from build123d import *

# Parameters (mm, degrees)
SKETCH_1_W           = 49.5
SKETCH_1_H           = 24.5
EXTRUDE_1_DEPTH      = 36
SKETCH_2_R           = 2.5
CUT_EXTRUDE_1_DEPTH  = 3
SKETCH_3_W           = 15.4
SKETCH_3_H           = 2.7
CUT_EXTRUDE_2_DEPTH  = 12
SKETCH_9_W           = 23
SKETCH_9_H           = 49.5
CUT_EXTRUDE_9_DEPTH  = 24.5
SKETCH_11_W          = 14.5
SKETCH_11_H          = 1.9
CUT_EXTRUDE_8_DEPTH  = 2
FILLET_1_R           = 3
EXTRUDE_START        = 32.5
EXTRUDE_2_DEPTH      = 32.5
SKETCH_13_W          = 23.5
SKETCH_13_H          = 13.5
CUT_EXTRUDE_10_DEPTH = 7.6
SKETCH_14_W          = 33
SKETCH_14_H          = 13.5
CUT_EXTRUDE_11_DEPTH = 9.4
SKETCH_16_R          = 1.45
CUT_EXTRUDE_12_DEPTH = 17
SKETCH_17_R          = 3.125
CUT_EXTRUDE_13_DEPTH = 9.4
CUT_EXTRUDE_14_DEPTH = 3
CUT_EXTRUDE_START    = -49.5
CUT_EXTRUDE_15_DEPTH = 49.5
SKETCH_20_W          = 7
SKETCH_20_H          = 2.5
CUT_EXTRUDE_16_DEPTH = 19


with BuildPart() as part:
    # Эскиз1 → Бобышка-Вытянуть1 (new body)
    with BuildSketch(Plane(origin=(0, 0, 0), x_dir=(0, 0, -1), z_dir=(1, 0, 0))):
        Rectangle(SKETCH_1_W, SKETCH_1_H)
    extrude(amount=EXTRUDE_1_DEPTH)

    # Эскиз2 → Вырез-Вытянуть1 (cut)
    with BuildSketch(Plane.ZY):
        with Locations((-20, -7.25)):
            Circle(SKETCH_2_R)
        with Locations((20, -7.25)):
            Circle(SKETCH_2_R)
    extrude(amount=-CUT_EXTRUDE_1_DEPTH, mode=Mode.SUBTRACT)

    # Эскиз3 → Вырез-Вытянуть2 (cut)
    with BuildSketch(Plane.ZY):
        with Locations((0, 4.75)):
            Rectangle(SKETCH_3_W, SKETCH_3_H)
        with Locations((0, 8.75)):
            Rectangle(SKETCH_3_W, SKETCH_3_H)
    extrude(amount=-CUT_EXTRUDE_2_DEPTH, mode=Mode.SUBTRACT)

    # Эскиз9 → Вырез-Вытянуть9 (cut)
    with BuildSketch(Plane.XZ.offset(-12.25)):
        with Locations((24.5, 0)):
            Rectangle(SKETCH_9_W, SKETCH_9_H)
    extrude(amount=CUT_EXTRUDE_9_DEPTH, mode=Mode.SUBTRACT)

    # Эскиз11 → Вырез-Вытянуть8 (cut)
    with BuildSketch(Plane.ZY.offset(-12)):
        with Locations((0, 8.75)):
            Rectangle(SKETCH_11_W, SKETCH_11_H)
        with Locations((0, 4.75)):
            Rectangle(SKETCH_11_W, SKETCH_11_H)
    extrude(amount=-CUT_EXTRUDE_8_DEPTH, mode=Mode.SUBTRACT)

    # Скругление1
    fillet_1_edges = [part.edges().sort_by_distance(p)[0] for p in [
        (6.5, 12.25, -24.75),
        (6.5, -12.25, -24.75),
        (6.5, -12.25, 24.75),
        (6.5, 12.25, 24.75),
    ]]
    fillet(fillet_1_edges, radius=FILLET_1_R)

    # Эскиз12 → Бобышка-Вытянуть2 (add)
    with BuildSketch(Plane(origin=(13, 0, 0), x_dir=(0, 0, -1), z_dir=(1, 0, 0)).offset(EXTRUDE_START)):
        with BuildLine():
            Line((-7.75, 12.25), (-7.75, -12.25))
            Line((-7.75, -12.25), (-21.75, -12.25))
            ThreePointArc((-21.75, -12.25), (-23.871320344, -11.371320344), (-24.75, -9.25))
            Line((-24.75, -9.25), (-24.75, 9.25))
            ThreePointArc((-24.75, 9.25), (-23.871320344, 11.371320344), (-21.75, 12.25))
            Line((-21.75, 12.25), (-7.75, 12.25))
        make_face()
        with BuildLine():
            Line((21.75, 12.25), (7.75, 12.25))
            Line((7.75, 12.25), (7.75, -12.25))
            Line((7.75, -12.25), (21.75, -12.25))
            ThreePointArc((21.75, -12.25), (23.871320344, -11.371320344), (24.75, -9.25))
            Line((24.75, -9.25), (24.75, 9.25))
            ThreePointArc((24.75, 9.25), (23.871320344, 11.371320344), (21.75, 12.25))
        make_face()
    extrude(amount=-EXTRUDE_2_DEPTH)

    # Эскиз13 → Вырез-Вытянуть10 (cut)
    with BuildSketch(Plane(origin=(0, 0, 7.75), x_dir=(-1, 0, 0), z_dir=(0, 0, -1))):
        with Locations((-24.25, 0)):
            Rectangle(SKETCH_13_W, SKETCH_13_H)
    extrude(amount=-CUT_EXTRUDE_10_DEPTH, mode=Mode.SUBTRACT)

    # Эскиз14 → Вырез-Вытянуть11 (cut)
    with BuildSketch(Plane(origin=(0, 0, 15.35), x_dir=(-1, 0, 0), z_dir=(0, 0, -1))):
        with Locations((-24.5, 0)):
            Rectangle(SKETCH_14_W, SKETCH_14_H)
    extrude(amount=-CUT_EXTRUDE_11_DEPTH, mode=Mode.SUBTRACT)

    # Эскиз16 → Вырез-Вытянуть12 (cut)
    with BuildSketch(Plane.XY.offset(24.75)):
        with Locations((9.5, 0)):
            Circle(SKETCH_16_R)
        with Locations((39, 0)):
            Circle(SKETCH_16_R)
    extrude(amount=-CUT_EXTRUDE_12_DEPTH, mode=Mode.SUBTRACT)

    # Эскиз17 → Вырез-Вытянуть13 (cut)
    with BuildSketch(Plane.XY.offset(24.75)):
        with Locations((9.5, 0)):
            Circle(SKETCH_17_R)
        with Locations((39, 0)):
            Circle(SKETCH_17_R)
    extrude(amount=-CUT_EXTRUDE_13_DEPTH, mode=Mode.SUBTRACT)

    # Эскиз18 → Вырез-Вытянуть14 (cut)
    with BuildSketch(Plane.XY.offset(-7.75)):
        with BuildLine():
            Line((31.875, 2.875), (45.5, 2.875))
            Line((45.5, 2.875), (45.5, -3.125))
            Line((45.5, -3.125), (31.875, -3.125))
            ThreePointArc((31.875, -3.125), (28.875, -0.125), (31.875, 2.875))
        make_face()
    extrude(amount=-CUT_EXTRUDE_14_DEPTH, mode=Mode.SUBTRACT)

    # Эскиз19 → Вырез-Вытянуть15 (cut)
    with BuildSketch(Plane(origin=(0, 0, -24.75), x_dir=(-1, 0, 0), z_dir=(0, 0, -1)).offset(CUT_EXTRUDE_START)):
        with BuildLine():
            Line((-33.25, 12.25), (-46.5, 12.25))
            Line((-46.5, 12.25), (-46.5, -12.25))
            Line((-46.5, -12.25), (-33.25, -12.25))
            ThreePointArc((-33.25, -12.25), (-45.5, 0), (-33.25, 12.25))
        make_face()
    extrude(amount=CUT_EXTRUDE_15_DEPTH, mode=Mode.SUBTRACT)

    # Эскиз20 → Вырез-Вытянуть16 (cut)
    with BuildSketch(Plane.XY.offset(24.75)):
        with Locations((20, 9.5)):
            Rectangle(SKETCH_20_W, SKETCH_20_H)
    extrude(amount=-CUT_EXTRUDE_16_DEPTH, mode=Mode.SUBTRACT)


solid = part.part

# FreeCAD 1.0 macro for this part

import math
import FreeCAD as App
import Part
import Sketcher


def edges_at(feature, points):
    """Names of the edges that pass closest to the given points."""
    edges = feature.Shape.Edges
    near = lambda p: min(range(len(edges)), key=lambda i: edges[i].distToShape(Part.Vertex(*p))[0])
    return sorted({f"Edge{near(p) + 1}" for p in points})


def add_polygon(sketch, points):
    """Adds a closed chain of lines whose ends are joined by coincident constraints."""
    first, n = sketch.GeometryCount, len(points)
    for a, b in zip(points, points[1:] + points[:1]):
        sketch.addGeometry(Part.LineSegment(App.Vector(*a, 0), App.Vector(*b, 0)), False)
    for i in range(n):
        sketch.addConstraint(Sketcher.Constraint("Coincident", first + i, 2, first + (i + 1) % n, 1))

doc = App.newDocument("Part")
body = doc.addObject("PartDesign::Body", "Body")

sketch1 = body.newObject("Sketcher::SketchObject", "Sketch")
sketch1.AttachmentSupport = (doc.getObject("YZ_Plane"), [""])
sketch1.MapMode = "FlatFace"
add_polygon(sketch1, [(12, 25), (-12, 25), (-12, -25), (12, -25)])
sketch1.addConstraint(Sketcher.Constraint("Horizontal", 0))
sketch1.addConstraint(Sketcher.Constraint("Vertical", 1))
sketch1.addConstraint(Sketcher.Constraint("Horizontal", 2))
sketch1.addConstraint(Sketcher.Constraint("Vertical", 3))
sketch1.addConstraint(Sketcher.Constraint("Symmetric", 0, 2, 2, 2, -1, 1))
sketch1.addConstraint(Sketcher.Constraint("DistanceX", 0, 2, 0, 1, 24.5))
sketch1.addConstraint(Sketcher.Constraint("DistanceY", 1, 2, 1, 1, 49.5))
pad1 = body.newObject("PartDesign::Pad", "Pad")
pad1.Profile = sketch1
pad1.Length = 36

sketch2 = body.newObject("Sketcher::SketchObject", "Sketch001")
sketch2.AttachmentSupport = (doc.getObject("YZ_Plane"), [""])
sketch2.MapMode = "FlatFace"
sketch2.addGeometry(Part.Circle(App.Vector(-7.2, -20, 0), App.Vector(0, 0, 1), 2.5), False)
sketch2.addGeometry(Part.Circle(App.Vector(-7.2, 20, 0), App.Vector(0, 0, 1), 2.5), False)
sketch2.addConstraint(Sketcher.Constraint("Equal", 0, 1))
sketch2.addConstraint(Sketcher.Constraint("Symmetric", 0, 3, 1, 3, -1))
sketch2.addConstraint(Sketcher.Constraint("Diameter", 0, 5.0))
sketch2.addConstraint(Sketcher.Constraint("DistanceY", 0, 3, -1, 1, 20.0))
sketch2.addConstraint(Sketcher.Constraint("DistanceX", 0, 3, -1, 1, 7.25))
pocket1 = body.newObject("PartDesign::Pocket", "Pocket")
pocket1.Profile = sketch2
pocket1.Length = 3
pocket1.Reversed = True

sketch3 = body.newObject("Sketcher::SketchObject", "Sketch002")
sketch3.AttachmentSupport = (doc.getObject("YZ_Plane"), [""])
sketch3.MapMode = "FlatFace"
add_polygon(sketch3, [(6.1, -7.7), (3.4, -7.7), (3.4, 7.7), (6.1, 7.7)])
add_polygon(sketch3, [(10.1, -7.7), (7.4, -7.7), (7.4, 7.7), (10.1, 7.7)])
sketch3.addConstraint(Sketcher.Constraint("Horizontal", 0))
sketch3.addConstraint(Sketcher.Constraint("Vertical", 1))
sketch3.addConstraint(Sketcher.Constraint("Horizontal", 2))
sketch3.addConstraint(Sketcher.Constraint("Vertical", 3))
sketch3.addConstraint(Sketcher.Constraint("Horizontal", 4))
sketch3.addConstraint(Sketcher.Constraint("Vertical", 5))
sketch3.addConstraint(Sketcher.Constraint("Horizontal", 6))
sketch3.addConstraint(Sketcher.Constraint("Vertical", 7))
sketch3.addConstraint(Sketcher.Constraint("Horizontal", 3, 2, 4, 2))
sketch3.addConstraint(Sketcher.Constraint("Horizontal", 2, 2, 5, 2))
sketch3.addConstraint(Sketcher.Constraint("Equal", 2, 4))
sketch3.addConstraint(Sketcher.Constraint("DistanceX", 0, 2, 0, 1, 2.7))
sketch3.addConstraint(Sketcher.Constraint("DistanceY", 1, 1, 1, 2, 15.4))
sketch3.addConstraint(Sketcher.Constraint("DistanceX", 0, 2, 4, 2, 4.0))
sketch3.addConstraint(Sketcher.Constraint("DistanceX", -1, 1, 0, 2, 3.4))
sketch3.addConstraint(Sketcher.Constraint("DistanceY", 0, 2, -1, 1, 7.7))
pocket2 = body.newObject("PartDesign::Pocket", "Pocket001")
pocket2.Profile = sketch3
pocket2.Length = 12
pocket2.Reversed = True

sketch4 = body.newObject("Sketcher::SketchObject", "Sketch003")
sketch4.AttachmentSupport = (doc.getObject("XZ_Plane"), [""])
sketch4.MapMode = "FlatFace"
sketch4.AttachmentOffset = App.Placement(App.Vector(0, 0, -12.25), App.Rotation())
add_polygon(sketch4, [(13, 25), (13, -25), (36, -25), (36, 25)])
sketch4.addConstraint(Sketcher.Constraint("Vertical", 0))
sketch4.addConstraint(Sketcher.Constraint("Horizontal", 1))
sketch4.addConstraint(Sketcher.Constraint("Vertical", 2))
sketch4.addConstraint(Sketcher.Constraint("Horizontal", 3))
sketch4.addConstraint(Sketcher.Constraint("DistanceX", 1, 1, 1, 2, 23.0))
sketch4.addConstraint(Sketcher.Constraint("DistanceY", 0, 2, 0, 1, 49.5))
sketch4.addConstraint(Sketcher.Constraint("DistanceX", -1, 1, 0, 2, 13.0))
sketch4.addConstraint(Sketcher.Constraint("DistanceY", 0, 2, -1, 1, 24.75))
pocket3 = body.newObject("PartDesign::Pocket", "Pocket002")
pocket3.Profile = sketch4
pocket3.Length = 24.5
pocket3.Reversed = True

sketch5 = body.newObject("Sketcher::SketchObject", "Sketch004")
sketch5.AttachmentSupport = (doc.getObject("YZ_Plane"), [""])
sketch5.MapMode = "FlatFace"
sketch5.AttachmentOffset = App.Placement(App.Vector(0, 0, 12), App.Rotation())
add_polygon(sketch5, [(9.7, -7.2), (7.8, -7.2), (7.8, 7.2), (9.7, 7.2)])
add_polygon(sketch5, [(5.7, -7.2), (3.8, -7.2), (3.8, 7.2), (5.7, 7.2)])
sketch5.addConstraint(Sketcher.Constraint("Horizontal", 0))
sketch5.addConstraint(Sketcher.Constraint("Vertical", 1))
sketch5.addConstraint(Sketcher.Constraint("Horizontal", 2))
sketch5.addConstraint(Sketcher.Constraint("Vertical", 3))
sketch5.addConstraint(Sketcher.Constraint("Horizontal", 4))
sketch5.addConstraint(Sketcher.Constraint("Vertical", 5))
sketch5.addConstraint(Sketcher.Constraint("Horizontal", 6))
sketch5.addConstraint(Sketcher.Constraint("Vertical", 7))
sketch5.addConstraint(Sketcher.Constraint("Horizontal", 3, 2, 4, 2))
sketch5.addConstraint(Sketcher.Constraint("Horizontal", 2, 2, 5, 2))
sketch5.addConstraint(Sketcher.Constraint("Equal", 2, 4))
sketch5.addConstraint(Sketcher.Constraint("DistanceX", 0, 2, 0, 1, 1.9))
sketch5.addConstraint(Sketcher.Constraint("DistanceY", 1, 1, 1, 2, 14.5))
sketch5.addConstraint(Sketcher.Constraint("DistanceX", 4, 2, 0, 2, 4.0))
sketch5.addConstraint(Sketcher.Constraint("DistanceX", -1, 1, 0, 2, 7.8))
sketch5.addConstraint(Sketcher.Constraint("DistanceY", 0, 2, -1, 1, 7.25))
pocket4 = body.newObject("PartDesign::Pocket", "Pocket003")
pocket4.Profile = sketch5
pocket4.Length = 2
pocket4.Reversed = True
doc.recompute()

fillet = body.newObject("PartDesign::Fillet", "Fillet")
fillet.Base = (pocket4, edges_at(pocket4, [
    (6.5, 12.25, -24.75),
    (6.5, -12.25, -24.75),
    (6.5, -12.25, 24.75),
    (6.5, 12.25, 24.75),
]))
fillet.Radius = 3

sketch6 = body.newObject("Sketcher::SketchObject", "Sketch005")
sketch6.AttachmentSupport = (doc.getObject("YZ_Plane"), [""])
sketch6.MapMode = "FlatFace"
sketch6.AttachmentOffset = App.Placement(App.Vector(0, 0, 45.5), App.Rotation())
sketch6.addGeometry(Part.LineSegment(App.Vector(-12.2, 7.8, 0), App.Vector(12.2, 7.8, 0)), False)
sketch6.addGeometry(Part.LineSegment(App.Vector(12.2, 7.8, 0), App.Vector(12.2, 21.8, 0)), False)
sketch6.addGeometry(Part.ArcOfCircle(Part.Circle(App.Vector(9.3, 21.8, 0), App.Vector(0, 0, 1), 3), math.radians(0), math.radians(90)), False)
sketch6.addGeometry(Part.LineSegment(App.Vector(9.2, 24.8, 0), App.Vector(-9.2, 24.8, 0)), False)
sketch6.addGeometry(Part.ArcOfCircle(Part.Circle(App.Vector(-9.3, 21.8, 0), App.Vector(0, 0, 1), 3), math.radians(90), math.radians(180)), False)
sketch6.addGeometry(Part.LineSegment(App.Vector(-12.2, 21.8, 0), App.Vector(-12.2, 7.8, 0)), False)
sketch6.addGeometry(Part.LineSegment(App.Vector(12.2, -21.8, 0), App.Vector(12.2, -7.8, 0)), False)
sketch6.addGeometry(Part.LineSegment(App.Vector(12.2, -7.8, 0), App.Vector(-12.2, -7.8, 0)), False)
sketch6.addGeometry(Part.LineSegment(App.Vector(-12.2, -7.8, 0), App.Vector(-12.2, -21.8, 0)), False)
sketch6.addGeometry(Part.ArcOfCircle(Part.Circle(App.Vector(-9.3, -21.8, 0), App.Vector(0, 0, 1), 3), math.radians(180), math.radians(270)), False)
sketch6.addGeometry(Part.LineSegment(App.Vector(-9.2, -24.8, 0), App.Vector(9.2, -24.8, 0)), False)
sketch6.addGeometry(Part.ArcOfCircle(Part.Circle(App.Vector(9.3, -21.8, 0), App.Vector(0, 0, 1), 3), math.radians(-90), math.radians(0)), False)
sketch6.addConstraint(Sketcher.Constraint("Coincident", 0, 2, 1, 1))
sketch6.addConstraint(Sketcher.Constraint("Tangent", 1, 2, 2, 1))
sketch6.addConstraint(Sketcher.Constraint("Tangent", 2, 2, 3, 1))
sketch6.addConstraint(Sketcher.Constraint("Tangent", 3, 2, 4, 1))
sketch6.addConstraint(Sketcher.Constraint("Tangent", 4, 2, 5, 1))
sketch6.addConstraint(Sketcher.Constraint("Coincident", 5, 2, 0, 1))
sketch6.addConstraint(Sketcher.Constraint("Coincident", 6, 2, 7, 1))
sketch6.addConstraint(Sketcher.Constraint("Coincident", 7, 2, 8, 1))
sketch6.addConstraint(Sketcher.Constraint("Tangent", 8, 2, 9, 1))
sketch6.addConstraint(Sketcher.Constraint("Tangent", 9, 2, 10, 1))
sketch6.addConstraint(Sketcher.Constraint("Tangent", 10, 2, 11, 1))
sketch6.addConstraint(Sketcher.Constraint("Tangent", 11, 2, 6, 1))
sketch6.addConstraint(Sketcher.Constraint("Horizontal", 0))
sketch6.addConstraint(Sketcher.Constraint("Vertical", 1))
sketch6.addConstraint(Sketcher.Constraint("Horizontal", 3))
sketch6.addConstraint(Sketcher.Constraint("Vertical", 5))
sketch6.addConstraint(Sketcher.Constraint("Vertical", 6))
sketch6.addConstraint(Sketcher.Constraint("Horizontal", 7))
sketch6.addConstraint(Sketcher.Constraint("Vertical", 8))
sketch6.addConstraint(Sketcher.Constraint("Horizontal", 10))
sketch6.addConstraint(Sketcher.Constraint("Equal", 2, 4))
sketch6.addConstraint(Sketcher.Constraint("Equal", 4, 9))
sketch6.addConstraint(Sketcher.Constraint("Equal", 9, 11))
sketch6.addConstraint(Sketcher.Constraint("Symmetric", 2, 3, 9, 3, -1, 1))
sketch6.addConstraint(Sketcher.Constraint("Symmetric", 5, 2, 6, 2, -1, 1))
sketch6.addConstraint(Sketcher.Constraint("Vertical", 4, 3, 9, 3))
sketch6.addConstraint(Sketcher.Constraint("Radius", 2, 3.0))
sketch6.addConstraint(Sketcher.Constraint("DistanceY", 1, 1, 1, 2, 14.0))
sketch6.addConstraint(Sketcher.Constraint("DistanceX", 0, 1, 0, 2, 24.5))
sketch6.addConstraint(Sketcher.Constraint("DistanceY", 9, 3, 4, 3, 43.5))
pad2 = body.newObject("PartDesign::Pad", "Pad001")
pad2.Profile = sketch6
pad2.Length = 32.5
pad2.Reversed = True

sketch7 = body.newObject("Sketcher::SketchObject", "Sketch006")
sketch7.AttachmentSupport = (doc.getObject("XY_Plane"), [""])
sketch7.MapMode = "FlatFace"
sketch7.AttachmentOffset = App.Placement(App.Vector(0, 0, 7.75), App.Rotation())
add_polygon(sketch7, [(36, 7), (36, -7), (12, -7), (12, 7)])
sketch7.addConstraint(Sketcher.Constraint("Vertical", 0))
sketch7.addConstraint(Sketcher.Constraint("Horizontal", 1))
sketch7.addConstraint(Sketcher.Constraint("Vertical", 2))
sketch7.addConstraint(Sketcher.Constraint("Horizontal", 3))
sketch7.addConstraint(Sketcher.Constraint("DistanceX", 1, 2, 1, 1, 23.5))
sketch7.addConstraint(Sketcher.Constraint("DistanceY", 0, 2, 0, 1, 13.5))
sketch7.addConstraint(Sketcher.Constraint("DistanceX", -1, 1, 0, 2, 36.0))
sketch7.addConstraint(Sketcher.Constraint("DistanceY", 0, 2, -1, 1, 6.75))
pocket5 = body.newObject("PartDesign::Pocket", "Pocket004")
pocket5.Profile = sketch7
pocket5.Length = 7.6
pocket5.Reversed = True

sketch8 = body.newObject("Sketcher::SketchObject", "Sketch007")
sketch8.AttachmentSupport = (doc.getObject("XY_Plane"), [""])
sketch8.MapMode = "FlatFace"
sketch8.AttachmentOffset = App.Placement(App.Vector(0, 0, 15.35), App.Rotation())
add_polygon(sketch8, [(41, 7), (41, -7), (8, -7), (8, 7)])
sketch8.addConstraint(Sketcher.Constraint("Vertical", 0))
sketch8.addConstraint(Sketcher.Constraint("Horizontal", 1))
sketch8.addConstraint(Sketcher.Constraint("Vertical", 2))
sketch8.addConstraint(Sketcher.Constraint("Horizontal", 3))
sketch8.addConstraint(Sketcher.Constraint("DistanceX", 1, 2, 1, 1, 33.0))
sketch8.addConstraint(Sketcher.Constraint("DistanceY", 0, 2, 0, 1, 13.5))
sketch8.addConstraint(Sketcher.Constraint("DistanceX", -1, 1, 0, 2, 41.0))
sketch8.addConstraint(Sketcher.Constraint("DistanceY", 0, 2, -1, 1, 6.75))
pocket6 = body.newObject("PartDesign::Pocket", "Pocket005")
pocket6.Profile = sketch8
pocket6.Length = 9.4
pocket6.Reversed = True

sketch9 = body.newObject("Sketcher::SketchObject", "Sketch008")
sketch9.AttachmentSupport = (doc.getObject("XY_Plane"), [""])
sketch9.MapMode = "FlatFace"
sketch9.AttachmentOffset = App.Placement(App.Vector(0, 0, 24.75), App.Rotation())
sketch9.addGeometry(Part.Circle(App.Vector(9.5, 0, 0), App.Vector(0, 0, 1), 1.4), False)
sketch9.addGeometry(Part.Circle(App.Vector(39, 0, 0), App.Vector(0, 0, 1), 1.4), False)
sketch9.addConstraint(Sketcher.Constraint("Equal", 0, 1))
sketch9.addConstraint(Sketcher.Constraint("PointOnObject", 0, 3, -1))
sketch9.addConstraint(Sketcher.Constraint("PointOnObject", 1, 3, -1))
sketch9.addConstraint(Sketcher.Constraint("Diameter", 0, 2.9))
sketch9.addConstraint(Sketcher.Constraint("DistanceX", -1, 1, 1, 3, 39.0))
sketch9.addConstraint(Sketcher.Constraint("DistanceX", -1, 1, 0, 3, 9.5))
pocket7 = body.newObject("PartDesign::Pocket", "Pocket006")
pocket7.Profile = sketch9
pocket7.Length = 17

sketch10 = body.newObject("Sketcher::SketchObject", "Sketch009")
sketch10.AttachmentSupport = (doc.getObject("XY_Plane"), [""])
sketch10.MapMode = "FlatFace"
sketch10.AttachmentOffset = App.Placement(App.Vector(0, 0, 24.75), App.Rotation())
sketch10.addGeometry(Part.Circle(App.Vector(9.5, 0, 0), App.Vector(0, 0, 1), 3.1), False)
sketch10.addGeometry(Part.Circle(App.Vector(39, 0, 0), App.Vector(0, 0, 1), 3.1), False)
sketch10.addConstraint(Sketcher.Constraint("Equal", 0, 1))
sketch10.addConstraint(Sketcher.Constraint("PointOnObject", 0, 3, -1))
sketch10.addConstraint(Sketcher.Constraint("PointOnObject", 1, 3, -1))
sketch10.addConstraint(Sketcher.Constraint("Diameter", 0, 6.25))
sketch10.addConstraint(Sketcher.Constraint("DistanceX", -1, 1, 1, 3, 39.0))
sketch10.addConstraint(Sketcher.Constraint("DistanceX", -1, 1, 0, 3, 9.5))
pocket8 = body.newObject("PartDesign::Pocket", "Pocket007")
pocket8.Profile = sketch10
pocket8.Length = 9.4

sketch11 = body.newObject("Sketcher::SketchObject", "Sketch010")
sketch11.AttachmentSupport = (doc.getObject("XY_Plane"), [""])
sketch11.MapMode = "FlatFace"
sketch11.AttachmentOffset = App.Placement(App.Vector(0, 0, -7.75), App.Rotation())
sketch11.addGeometry(Part.LineSegment(App.Vector(45.5, 2.9, 0), App.Vector(31.9, 2.9, 0)), False)
sketch11.addGeometry(Part.ArcOfCircle(Part.Circle(App.Vector(31.9, -0.1, 0), App.Vector(0, 0, 1), 3), math.radians(90), math.radians(270)), False)
sketch11.addGeometry(Part.LineSegment(App.Vector(31.9, -3.1, 0), App.Vector(45.5, -3.1, 0)), False)
sketch11.addGeometry(Part.LineSegment(App.Vector(45.5, -3.1, 0), App.Vector(45.5, 2.9, 0)), False)
sketch11.addConstraint(Sketcher.Constraint("Tangent", 0, 2, 1, 1))
sketch11.addConstraint(Sketcher.Constraint("Tangent", 1, 2, 2, 1))
sketch11.addConstraint(Sketcher.Constraint("Coincident", 2, 2, 3, 1))
sketch11.addConstraint(Sketcher.Constraint("Coincident", 3, 2, 0, 1))
sketch11.addConstraint(Sketcher.Constraint("Horizontal", 0))
sketch11.addConstraint(Sketcher.Constraint("Horizontal", 2))
sketch11.addConstraint(Sketcher.Constraint("Vertical", 3))
sketch11.addConstraint(Sketcher.Constraint("Radius", 1, 3.0))
sketch11.addConstraint(Sketcher.Constraint("DistanceX", -1, 1, 2, 2, 45.5))
sketch11.addConstraint(Sketcher.Constraint("DistanceX", 0, 2, 0, 1, 13.625))
sketch11.addConstraint(Sketcher.Constraint("DistanceY", 1, 3, -1, 1, 0.125))
pocket9 = body.newObject("PartDesign::Pocket", "Pocket008")
pocket9.Profile = sketch11
pocket9.Length = 3

sketch12 = body.newObject("Sketcher::SketchObject", "Sketch011")
sketch12.AttachmentSupport = (doc.getObject("XY_Plane"), [""])
sketch12.MapMode = "FlatFace"
sketch12.AttachmentOffset = App.Placement(App.Vector(0, 0, 24.75), App.Rotation())
sketch12.addGeometry(Part.LineSegment(App.Vector(33, 12, 0), App.Vector(46, 12, 0)), False)
sketch12.addGeometry(Part.LineSegment(App.Vector(46, 12, 0), App.Vector(46, -12, 0)), False)
sketch12.addGeometry(Part.LineSegment(App.Vector(46, -12, 0), App.Vector(33, -12, 0)), False)
sketch12.addGeometry(Part.ArcOfCircle(Part.Circle(App.Vector(33, 0, 0), App.Vector(0, 0, 1), 12), math.radians(-90), math.radians(90)), False)
sketch12.addConstraint(Sketcher.Constraint("Coincident", 0, 2, 1, 1))
sketch12.addConstraint(Sketcher.Constraint("Coincident", 1, 2, 2, 1))
sketch12.addConstraint(Sketcher.Constraint("Tangent", 2, 2, 3, 1))
sketch12.addConstraint(Sketcher.Constraint("Tangent", 3, 2, 0, 1))
sketch12.addConstraint(Sketcher.Constraint("Horizontal", 0))
sketch12.addConstraint(Sketcher.Constraint("Vertical", 1))
sketch12.addConstraint(Sketcher.Constraint("Horizontal", 2))
sketch12.addConstraint(Sketcher.Constraint("PointOnObject", 3, 3, -1))
sketch12.addConstraint(Sketcher.Constraint("Radius", 3, 12.25))
sketch12.addConstraint(Sketcher.Constraint("DistanceX", 0, 1, 0, 2, 13.25))
sketch12.addConstraint(Sketcher.Constraint("DistanceX", -1, 1, 0, 2, 46.5))
pocket10 = body.newObject("PartDesign::Pocket", "Pocket009")
pocket10.Profile = sketch12
pocket10.Length = 49.5

sketch13 = body.newObject("Sketcher::SketchObject", "Sketch012")
sketch13.AttachmentSupport = (doc.getObject("XY_Plane"), [""])
sketch13.MapMode = "FlatFace"
sketch13.AttachmentOffset = App.Placement(App.Vector(0, 0, 24.75), App.Rotation())
add_polygon(sketch13, [(16.5, 10.8), (16.5, 8.2), (23.5, 8.2), (23.5, 10.8)])
sketch13.addConstraint(Sketcher.Constraint("Vertical", 0))
sketch13.addConstraint(Sketcher.Constraint("Horizontal", 1))
sketch13.addConstraint(Sketcher.Constraint("Vertical", 2))
sketch13.addConstraint(Sketcher.Constraint("Horizontal", 3))
sketch13.addConstraint(Sketcher.Constraint("DistanceX", 1, 1, 1, 2, 7.0))
sketch13.addConstraint(Sketcher.Constraint("DistanceY", 0, 2, 0, 1, 2.5))
sketch13.addConstraint(Sketcher.Constraint("DistanceX", -1, 1, 0, 2, 16.5))
sketch13.addConstraint(Sketcher.Constraint("DistanceY", -1, 1, 0, 2, 8.25))
pocket11 = body.newObject("PartDesign::Pocket", "Pocket010")
pocket11.Profile = sketch13
pocket11.Length = 19

doc.recompute()
